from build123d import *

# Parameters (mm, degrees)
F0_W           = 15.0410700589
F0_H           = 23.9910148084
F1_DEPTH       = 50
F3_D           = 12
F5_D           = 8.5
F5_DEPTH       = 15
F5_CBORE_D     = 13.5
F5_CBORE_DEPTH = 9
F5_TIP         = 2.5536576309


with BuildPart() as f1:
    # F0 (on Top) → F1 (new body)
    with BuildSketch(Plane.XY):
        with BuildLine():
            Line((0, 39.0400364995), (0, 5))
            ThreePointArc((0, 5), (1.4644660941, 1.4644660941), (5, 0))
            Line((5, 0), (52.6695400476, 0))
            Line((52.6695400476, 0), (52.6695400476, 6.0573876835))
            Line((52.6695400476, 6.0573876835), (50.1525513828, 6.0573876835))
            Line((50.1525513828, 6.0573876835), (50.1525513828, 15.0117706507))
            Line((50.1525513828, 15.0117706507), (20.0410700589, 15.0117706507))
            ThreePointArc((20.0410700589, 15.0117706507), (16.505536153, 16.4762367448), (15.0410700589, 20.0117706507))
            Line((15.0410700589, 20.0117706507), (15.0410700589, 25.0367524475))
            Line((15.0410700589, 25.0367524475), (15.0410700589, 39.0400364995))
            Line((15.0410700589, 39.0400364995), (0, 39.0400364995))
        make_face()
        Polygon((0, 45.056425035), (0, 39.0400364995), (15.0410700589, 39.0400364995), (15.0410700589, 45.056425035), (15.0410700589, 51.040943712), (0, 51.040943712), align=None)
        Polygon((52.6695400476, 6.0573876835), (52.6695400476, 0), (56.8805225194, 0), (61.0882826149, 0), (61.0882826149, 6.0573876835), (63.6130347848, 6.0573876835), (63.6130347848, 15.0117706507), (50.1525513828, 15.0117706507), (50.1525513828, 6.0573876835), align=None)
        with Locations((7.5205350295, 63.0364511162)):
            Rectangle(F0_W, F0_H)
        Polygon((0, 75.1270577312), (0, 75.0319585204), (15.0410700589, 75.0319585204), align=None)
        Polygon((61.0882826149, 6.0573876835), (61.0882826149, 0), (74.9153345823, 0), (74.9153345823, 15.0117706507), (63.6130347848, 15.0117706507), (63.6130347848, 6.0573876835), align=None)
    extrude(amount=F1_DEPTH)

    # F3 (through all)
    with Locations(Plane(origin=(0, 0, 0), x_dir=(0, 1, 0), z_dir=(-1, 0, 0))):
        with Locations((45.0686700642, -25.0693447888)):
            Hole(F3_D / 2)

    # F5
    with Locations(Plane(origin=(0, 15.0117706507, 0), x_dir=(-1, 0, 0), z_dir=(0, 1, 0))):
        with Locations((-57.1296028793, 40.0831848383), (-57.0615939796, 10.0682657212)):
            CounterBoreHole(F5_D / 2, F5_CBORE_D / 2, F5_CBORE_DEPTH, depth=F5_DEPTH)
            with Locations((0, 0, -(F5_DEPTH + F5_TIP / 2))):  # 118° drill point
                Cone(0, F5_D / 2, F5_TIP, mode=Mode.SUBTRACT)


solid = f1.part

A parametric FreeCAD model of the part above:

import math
import FreeCAD as App
import Part
import Sketcher
from FreeCAD import Vector
Q = App.Units.Quantity

doc = App.newDocument("Part")
params = doc.addObject("Spreadsheet::Sheet", "Params")
for row, (alias, value) in enumerate([
    ("sketch1_radius", "5 mm"),
    ("pad1_length", "50 mm"),
    ("sketch2_diameter", "12 mm"),
    ("hole_diameter", "12 mm"),
    ("sketch3_diameter", "8.5 mm"),
    ("hole2_diameter", "8.5 mm"),
    ("hole2_depth", "15 mm"),
    ("hole2_cbore_diameter", "13.5 mm"),
    ("hole2_cbore_depth", "9 mm"),
], start=1):
    params.set(f"A{row}", alias)
    params.set(f"B{row}", "=" + value)
    params.setAlias(f"B{row}", alias)

body = doc.addObject("PartDesign::Body", "Body")

sketch1 = body.newObject("Sketcher::SketchObject", "Sketch")
sketch1.AttachmentSupport = (doc.getObject("XY_Plane"), [""])
sketch1.MapMode = "FlatFace"
sketch1.addGeometry([
    Part.ArcOfCircle(Part.Circle(Vector(5, 5, 0), Vector(0, 0, 1), 5), math.radians(180), math.radians(270)),
    Part.LineSegment(Vector(5, 0, 0), Vector(75, 0, 0)),
    Part.LineSegment(Vector(75, 0, 0), Vector(75, 15, 0)),
    Part.LineSegment(Vector(75, 15, 0), Vector(20, 15, 0)),
    Part.ArcOfCircle(Part.Circle(Vector(20, 20, 0), Vector(0, 0, 1), 5), math.radians(180), math.radians(270)),
    Part.LineSegment(Vector(15, 20, 0), Vector(15, 75, 0)),
    Part.LineSegment(Vector(15, 75, 0), Vector(0, 75, 0)),
    Part.LineSegment(Vector(0, 75, 0), Vector(0, 5, 0)),
], False)
sketch1.addConstraint([
    Sketcher.Constraint("Tangent", 0, 2, 1, 1),
    Sketcher.Constraint("Coincident", 1, 2, 2, 1),
    Sketcher.Constraint("Coincident", 2, 2, 3, 1),
    Sketcher.Constraint("Tangent", 3, 2, 4, 2),
    Sketcher.Constraint("Tangent", 4, 1, 5, 1),
    Sketcher.Constraint("Coincident", 5, 2, 6, 1),
    Sketcher.Constraint("Coincident", 6, 2, 7, 1),
    Sketcher.Constraint("Tangent", 7, 2, 0, 1),
    Sketcher.Constraint("Horizontal", 1),
    Sketcher.Constraint("Vertical", 2),
    Sketcher.Constraint("Horizontal", 3),
    Sketcher.Constraint("Vertical", 5),
    Sketcher.Constraint("Vertical", 7),
    Sketcher.Constraint("Equal", 0, 4),
    Sketcher.Constraint("PointOnObject", 0, 2, -1),
    Sketcher.Constraint("PointOnObject", 6, 2, -2),
    Sketcher.Constraint("Radius", 0, Q("5 mm")),
    Sketcher.Constraint("DistanceY", 2, 1, 2, 2, Q("15.011771 mm")),
    Sketcher.Constraint("DistanceY", 5, 2, 6, 2, Q("0.095099 mm")),
    Sketcher.Constraint("Distance", 6, Q("15.041371 mm")),
    Sketcher.Constraint("DistanceX", 1, 1, 1, 2, Q("69.915335 mm")),
    Sketcher.Constraint("DistanceY", 5, 1, 5, 2, Q("55.020188 mm")),
])
sketch1.setExpression("Constraints[16]", "Params.sketch1_radius")
pad1 = body.newObject("PartDesign::Pad", "Pad")
pad1.Profile = sketch1
pad1.setExpression("Length", "Params.pad1_length")

sketch2 = body.newObject("Sketcher::SketchObject", "Sketch001")
sketch2.AttachmentSupport = (doc.getObject("YZ_Plane"), [""])
sketch2.MapMode = "FlatFace"
sketch2.addGeometry(Part.Circle(Vector(45, 25, 0), Vector(0, 0, 1), 6), False)
sketch2.addConstraint([
    Sketcher.Constraint("Diameter", 0, Q("12 mm")),
    Sketcher.Constraint("DistanceX", -1, 1, 0, 3, Q("45.06867 mm")),
    Sketcher.Constraint("DistanceY", -1, 1, 0, 3, Q("25.069345 mm")),
])
sketch2.setExpression("Constraints[0]", "Params.sketch2_diameter")
doc.recompute()
hole = body.newObject("PartDesign::Hole", "Hole")
hole.Profile = sketch2
hole.ThreadType = "None"
hole.setExpression("Diameter", "Params.hole_diameter")
hole.DepthType = "ThroughAll"
hole.Reversed = True

sketch3 = body.newObject("Sketcher::SketchObject", "Sketch002")
sketch3.AttachmentSupport = (doc.getObject("XZ_Plane"), [""])
sketch3.MapMode = "FlatFace"
sketch3.AttachmentOffset = App.Placement(Vector(0, 0, -15.011771), App.Rotation())
sketch3.addGeometry([
    Part.Circle(Vector(57.1, 40.1, 0), Vector(0, 0, 1), 4.2),
    Part.Circle(Vector(57.1, 10.1, 0), Vector(0, 0, 1), 4.2),
], False)
sketch3.addConstraint([
    Sketcher.Constraint("Equal", 0, 1),
    Sketcher.Constraint("Diameter", 0, Q("8.5 mm")),
    Sketcher.Constraint("DistanceX", 1, 3, 0, 3, Q("0.068009 mm")),
    Sketcher.Constraint("DistanceY", 1, 3, 0, 3, Q("30.014919 mm")),
    Sketcher.Constraint("DistanceX", -1, 1, 0, 3, Q("57.129603 mm")),
    Sketcher.Constraint("DistanceY", -1, 1, 0, 3, Q("40.083185 mm")),
])
sketch3.setExpression("Constraints[1]", "Params.sketch3_diameter")
doc.recompute()
hole2 = body.newObject("PartDesign::Hole", "Hole001")
hole2.Profile = sketch3
hole2.ThreadType = "None"
hole2.setExpression("Diameter", "Params.hole2_diameter")
hole2.DepthType = "Dimension"
hole2.setExpression("Depth", "Params.hole2_depth")
hole2.DrillPoint = "Angled"
hole2.DrillPointAngle = 118
hole2.HoleCutType = "Counterbore"
hole2.setExpression("HoleCutDiameter", "Params.hole2_cbore_diameter")
hole2.setExpression("HoleCutDepth", "Params.hole2_cbore_depth")
hole2.Reversed = True

doc.recompute()
